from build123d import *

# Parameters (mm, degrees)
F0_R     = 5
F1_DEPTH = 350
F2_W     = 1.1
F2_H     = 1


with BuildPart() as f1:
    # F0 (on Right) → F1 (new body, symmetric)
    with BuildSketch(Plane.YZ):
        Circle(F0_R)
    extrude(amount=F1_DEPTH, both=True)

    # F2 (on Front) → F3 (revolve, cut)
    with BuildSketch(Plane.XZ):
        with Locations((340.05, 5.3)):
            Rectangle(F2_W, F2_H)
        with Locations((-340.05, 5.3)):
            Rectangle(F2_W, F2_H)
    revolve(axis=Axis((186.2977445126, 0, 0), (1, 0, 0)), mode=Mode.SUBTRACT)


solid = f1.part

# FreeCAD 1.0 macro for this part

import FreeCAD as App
import Part
import Sketcher
Q = App.Units.Quantity

doc = App.newDocument("Part")
body = doc.addObject("PartDesign::Body", "Body")

# Sketch on YZ plane
sketch1 = body.newObject("Sketcher::SketchObject", "Sketch")
sketch1.AttachmentSupport = (doc.getObject("YZ_Plane"), [""])
sketch1.MapMode = "FlatFace"
sketch1.addGeometry(Part.Circle(App.Vector(0, 0, 0), App.Vector(0, 0, 1), 5), False)
sketch1.addConstraint(Sketcher.Constraint("Coincident", 0, 3, -1, 1))
sketch1.addConstraint(Sketcher.Constraint("Diameter", 0, Q("10 mm")))
pad1 = body.newObject("PartDesign::Pad", "Pad")
pad1.Profile = sketch1
pad1.Length = 700
pad1.Midplane = True

# Sketch on XZ plane
sketch2 = body.newObject("Sketcher::SketchObject", "Sketch001")
sketch2.AttachmentSupport = (doc.getObject("XZ_Plane"), [""])
sketch2.MapMode = "FlatFace"
sketch2.addGeometry(Part.LineSegment(App.Vector(339.5, 5.8, 0), App.Vector(339.5, 4.8, 0)), False)
sketch2.addGeometry(Part.LineSegment(App.Vector(339.5, 4.8, 0), App.Vector(340.6, 4.8, 0)), False)
sketch2.addGeometry(Part.LineSegment(App.Vector(340.6, 4.8, 0), App.Vector(340.6, 5.8, 0)), False)
sketch2.addGeometry(Part.LineSegment(App.Vector(340.6, 5.8, 0), App.Vector(339.5, 5.8, 0)), False)
sketch2.addGeometry(Part.LineSegment(App.Vector(-340.6, 5.8, 0), App.Vector(-340.6, 4.8, 0)), False)
sketch2.addGeometry(Part.LineSegment(App.Vector(-340.6, 4.8, 0), App.Vector(-339.5, 4.8, 0)), False)
sketch2.addGeometry(Part.LineSegment(App.Vector(-339.5, 4.8, 0), App.Vector(-339.5, 5.8, 0)), False)
sketch2.addGeometry(Part.LineSegment(App.Vector(-339.5, 5.8, 0), App.Vector(-340.6, 5.8, 0)), False)
sketch2.addConstraint(Sketcher.Constraint("Coincident", 0, 2, 1, 1))
sketch2.addConstraint(Sketcher.Constraint("Coincident", 1, 2, 2, 1))
sketch2.addConstraint(Sketcher.Constraint("Coincident", 2, 2, 3, 1))
sketch2.addConstraint(Sketcher.Constraint("Coincident", 3, 2, 0, 1))
sketch2.addConstraint(Sketcher.Constraint("Coincident", 4, 2, 5, 1))
sketch2.addConstraint(Sketcher.Constraint("Coincident", 5, 2, 6, 1))
sketch2.addConstraint(Sketcher.Constraint("Coincident", 6, 2, 7, 1))
sketch2.addConstraint(Sketcher.Constraint("Coincident", 7, 2, 4, 1))
sketch2.addConstraint(Sketcher.Constraint("Vertical", 0))
sketch2.addConstraint(Sketcher.Constraint("Horizontal", 1))
sketch2.addConstraint(Sketcher.Constraint("Vertical", 2))
sketch2.addConstraint(Sketcher.Constraint("Horizontal", 3))
sketch2.addConstraint(Sketcher.Constraint("Vertical", 4))
sketch2.addConstraint(Sketcher.Constraint("Horizontal", 5))
sketch2.addConstraint(Sketcher.Constraint("Vertical", 6))
sketch2.addConstraint(Sketcher.Constraint("Horizontal", 7))
sketch2.addConstraint(Sketcher.Constraint("Symmetric", 1, 2, 4, 2, -2))
sketch2.addConstraint(Sketcher.Constraint("Symmetric", 3, 2, 6, 2, -2))
sketch2.addConstraint(Sketcher.Constraint("DistanceY", 0, 2, 0, 1, Q("1 mm")))
sketch2.addConstraint(Sketcher.Constraint("DistanceX", 1, 1, 1, 2, Q("1.1 mm")))
sketch2.addConstraint(Sketcher.Constraint("DistanceX", 5, 2, 0, 2, Q("679 mm")))
sketch2.addConstraint(Sketcher.Constraint("DistanceY", -1, 1, 0, 2, Q("4.8 mm")))
groove = body.newObject("PartDesign::Groove", "Groove")
groove.Profile = sketch2
groove.ReferenceAxis = (sketch2, ["H_Axis"])
groove.Angle = 360

doc.recompute()
